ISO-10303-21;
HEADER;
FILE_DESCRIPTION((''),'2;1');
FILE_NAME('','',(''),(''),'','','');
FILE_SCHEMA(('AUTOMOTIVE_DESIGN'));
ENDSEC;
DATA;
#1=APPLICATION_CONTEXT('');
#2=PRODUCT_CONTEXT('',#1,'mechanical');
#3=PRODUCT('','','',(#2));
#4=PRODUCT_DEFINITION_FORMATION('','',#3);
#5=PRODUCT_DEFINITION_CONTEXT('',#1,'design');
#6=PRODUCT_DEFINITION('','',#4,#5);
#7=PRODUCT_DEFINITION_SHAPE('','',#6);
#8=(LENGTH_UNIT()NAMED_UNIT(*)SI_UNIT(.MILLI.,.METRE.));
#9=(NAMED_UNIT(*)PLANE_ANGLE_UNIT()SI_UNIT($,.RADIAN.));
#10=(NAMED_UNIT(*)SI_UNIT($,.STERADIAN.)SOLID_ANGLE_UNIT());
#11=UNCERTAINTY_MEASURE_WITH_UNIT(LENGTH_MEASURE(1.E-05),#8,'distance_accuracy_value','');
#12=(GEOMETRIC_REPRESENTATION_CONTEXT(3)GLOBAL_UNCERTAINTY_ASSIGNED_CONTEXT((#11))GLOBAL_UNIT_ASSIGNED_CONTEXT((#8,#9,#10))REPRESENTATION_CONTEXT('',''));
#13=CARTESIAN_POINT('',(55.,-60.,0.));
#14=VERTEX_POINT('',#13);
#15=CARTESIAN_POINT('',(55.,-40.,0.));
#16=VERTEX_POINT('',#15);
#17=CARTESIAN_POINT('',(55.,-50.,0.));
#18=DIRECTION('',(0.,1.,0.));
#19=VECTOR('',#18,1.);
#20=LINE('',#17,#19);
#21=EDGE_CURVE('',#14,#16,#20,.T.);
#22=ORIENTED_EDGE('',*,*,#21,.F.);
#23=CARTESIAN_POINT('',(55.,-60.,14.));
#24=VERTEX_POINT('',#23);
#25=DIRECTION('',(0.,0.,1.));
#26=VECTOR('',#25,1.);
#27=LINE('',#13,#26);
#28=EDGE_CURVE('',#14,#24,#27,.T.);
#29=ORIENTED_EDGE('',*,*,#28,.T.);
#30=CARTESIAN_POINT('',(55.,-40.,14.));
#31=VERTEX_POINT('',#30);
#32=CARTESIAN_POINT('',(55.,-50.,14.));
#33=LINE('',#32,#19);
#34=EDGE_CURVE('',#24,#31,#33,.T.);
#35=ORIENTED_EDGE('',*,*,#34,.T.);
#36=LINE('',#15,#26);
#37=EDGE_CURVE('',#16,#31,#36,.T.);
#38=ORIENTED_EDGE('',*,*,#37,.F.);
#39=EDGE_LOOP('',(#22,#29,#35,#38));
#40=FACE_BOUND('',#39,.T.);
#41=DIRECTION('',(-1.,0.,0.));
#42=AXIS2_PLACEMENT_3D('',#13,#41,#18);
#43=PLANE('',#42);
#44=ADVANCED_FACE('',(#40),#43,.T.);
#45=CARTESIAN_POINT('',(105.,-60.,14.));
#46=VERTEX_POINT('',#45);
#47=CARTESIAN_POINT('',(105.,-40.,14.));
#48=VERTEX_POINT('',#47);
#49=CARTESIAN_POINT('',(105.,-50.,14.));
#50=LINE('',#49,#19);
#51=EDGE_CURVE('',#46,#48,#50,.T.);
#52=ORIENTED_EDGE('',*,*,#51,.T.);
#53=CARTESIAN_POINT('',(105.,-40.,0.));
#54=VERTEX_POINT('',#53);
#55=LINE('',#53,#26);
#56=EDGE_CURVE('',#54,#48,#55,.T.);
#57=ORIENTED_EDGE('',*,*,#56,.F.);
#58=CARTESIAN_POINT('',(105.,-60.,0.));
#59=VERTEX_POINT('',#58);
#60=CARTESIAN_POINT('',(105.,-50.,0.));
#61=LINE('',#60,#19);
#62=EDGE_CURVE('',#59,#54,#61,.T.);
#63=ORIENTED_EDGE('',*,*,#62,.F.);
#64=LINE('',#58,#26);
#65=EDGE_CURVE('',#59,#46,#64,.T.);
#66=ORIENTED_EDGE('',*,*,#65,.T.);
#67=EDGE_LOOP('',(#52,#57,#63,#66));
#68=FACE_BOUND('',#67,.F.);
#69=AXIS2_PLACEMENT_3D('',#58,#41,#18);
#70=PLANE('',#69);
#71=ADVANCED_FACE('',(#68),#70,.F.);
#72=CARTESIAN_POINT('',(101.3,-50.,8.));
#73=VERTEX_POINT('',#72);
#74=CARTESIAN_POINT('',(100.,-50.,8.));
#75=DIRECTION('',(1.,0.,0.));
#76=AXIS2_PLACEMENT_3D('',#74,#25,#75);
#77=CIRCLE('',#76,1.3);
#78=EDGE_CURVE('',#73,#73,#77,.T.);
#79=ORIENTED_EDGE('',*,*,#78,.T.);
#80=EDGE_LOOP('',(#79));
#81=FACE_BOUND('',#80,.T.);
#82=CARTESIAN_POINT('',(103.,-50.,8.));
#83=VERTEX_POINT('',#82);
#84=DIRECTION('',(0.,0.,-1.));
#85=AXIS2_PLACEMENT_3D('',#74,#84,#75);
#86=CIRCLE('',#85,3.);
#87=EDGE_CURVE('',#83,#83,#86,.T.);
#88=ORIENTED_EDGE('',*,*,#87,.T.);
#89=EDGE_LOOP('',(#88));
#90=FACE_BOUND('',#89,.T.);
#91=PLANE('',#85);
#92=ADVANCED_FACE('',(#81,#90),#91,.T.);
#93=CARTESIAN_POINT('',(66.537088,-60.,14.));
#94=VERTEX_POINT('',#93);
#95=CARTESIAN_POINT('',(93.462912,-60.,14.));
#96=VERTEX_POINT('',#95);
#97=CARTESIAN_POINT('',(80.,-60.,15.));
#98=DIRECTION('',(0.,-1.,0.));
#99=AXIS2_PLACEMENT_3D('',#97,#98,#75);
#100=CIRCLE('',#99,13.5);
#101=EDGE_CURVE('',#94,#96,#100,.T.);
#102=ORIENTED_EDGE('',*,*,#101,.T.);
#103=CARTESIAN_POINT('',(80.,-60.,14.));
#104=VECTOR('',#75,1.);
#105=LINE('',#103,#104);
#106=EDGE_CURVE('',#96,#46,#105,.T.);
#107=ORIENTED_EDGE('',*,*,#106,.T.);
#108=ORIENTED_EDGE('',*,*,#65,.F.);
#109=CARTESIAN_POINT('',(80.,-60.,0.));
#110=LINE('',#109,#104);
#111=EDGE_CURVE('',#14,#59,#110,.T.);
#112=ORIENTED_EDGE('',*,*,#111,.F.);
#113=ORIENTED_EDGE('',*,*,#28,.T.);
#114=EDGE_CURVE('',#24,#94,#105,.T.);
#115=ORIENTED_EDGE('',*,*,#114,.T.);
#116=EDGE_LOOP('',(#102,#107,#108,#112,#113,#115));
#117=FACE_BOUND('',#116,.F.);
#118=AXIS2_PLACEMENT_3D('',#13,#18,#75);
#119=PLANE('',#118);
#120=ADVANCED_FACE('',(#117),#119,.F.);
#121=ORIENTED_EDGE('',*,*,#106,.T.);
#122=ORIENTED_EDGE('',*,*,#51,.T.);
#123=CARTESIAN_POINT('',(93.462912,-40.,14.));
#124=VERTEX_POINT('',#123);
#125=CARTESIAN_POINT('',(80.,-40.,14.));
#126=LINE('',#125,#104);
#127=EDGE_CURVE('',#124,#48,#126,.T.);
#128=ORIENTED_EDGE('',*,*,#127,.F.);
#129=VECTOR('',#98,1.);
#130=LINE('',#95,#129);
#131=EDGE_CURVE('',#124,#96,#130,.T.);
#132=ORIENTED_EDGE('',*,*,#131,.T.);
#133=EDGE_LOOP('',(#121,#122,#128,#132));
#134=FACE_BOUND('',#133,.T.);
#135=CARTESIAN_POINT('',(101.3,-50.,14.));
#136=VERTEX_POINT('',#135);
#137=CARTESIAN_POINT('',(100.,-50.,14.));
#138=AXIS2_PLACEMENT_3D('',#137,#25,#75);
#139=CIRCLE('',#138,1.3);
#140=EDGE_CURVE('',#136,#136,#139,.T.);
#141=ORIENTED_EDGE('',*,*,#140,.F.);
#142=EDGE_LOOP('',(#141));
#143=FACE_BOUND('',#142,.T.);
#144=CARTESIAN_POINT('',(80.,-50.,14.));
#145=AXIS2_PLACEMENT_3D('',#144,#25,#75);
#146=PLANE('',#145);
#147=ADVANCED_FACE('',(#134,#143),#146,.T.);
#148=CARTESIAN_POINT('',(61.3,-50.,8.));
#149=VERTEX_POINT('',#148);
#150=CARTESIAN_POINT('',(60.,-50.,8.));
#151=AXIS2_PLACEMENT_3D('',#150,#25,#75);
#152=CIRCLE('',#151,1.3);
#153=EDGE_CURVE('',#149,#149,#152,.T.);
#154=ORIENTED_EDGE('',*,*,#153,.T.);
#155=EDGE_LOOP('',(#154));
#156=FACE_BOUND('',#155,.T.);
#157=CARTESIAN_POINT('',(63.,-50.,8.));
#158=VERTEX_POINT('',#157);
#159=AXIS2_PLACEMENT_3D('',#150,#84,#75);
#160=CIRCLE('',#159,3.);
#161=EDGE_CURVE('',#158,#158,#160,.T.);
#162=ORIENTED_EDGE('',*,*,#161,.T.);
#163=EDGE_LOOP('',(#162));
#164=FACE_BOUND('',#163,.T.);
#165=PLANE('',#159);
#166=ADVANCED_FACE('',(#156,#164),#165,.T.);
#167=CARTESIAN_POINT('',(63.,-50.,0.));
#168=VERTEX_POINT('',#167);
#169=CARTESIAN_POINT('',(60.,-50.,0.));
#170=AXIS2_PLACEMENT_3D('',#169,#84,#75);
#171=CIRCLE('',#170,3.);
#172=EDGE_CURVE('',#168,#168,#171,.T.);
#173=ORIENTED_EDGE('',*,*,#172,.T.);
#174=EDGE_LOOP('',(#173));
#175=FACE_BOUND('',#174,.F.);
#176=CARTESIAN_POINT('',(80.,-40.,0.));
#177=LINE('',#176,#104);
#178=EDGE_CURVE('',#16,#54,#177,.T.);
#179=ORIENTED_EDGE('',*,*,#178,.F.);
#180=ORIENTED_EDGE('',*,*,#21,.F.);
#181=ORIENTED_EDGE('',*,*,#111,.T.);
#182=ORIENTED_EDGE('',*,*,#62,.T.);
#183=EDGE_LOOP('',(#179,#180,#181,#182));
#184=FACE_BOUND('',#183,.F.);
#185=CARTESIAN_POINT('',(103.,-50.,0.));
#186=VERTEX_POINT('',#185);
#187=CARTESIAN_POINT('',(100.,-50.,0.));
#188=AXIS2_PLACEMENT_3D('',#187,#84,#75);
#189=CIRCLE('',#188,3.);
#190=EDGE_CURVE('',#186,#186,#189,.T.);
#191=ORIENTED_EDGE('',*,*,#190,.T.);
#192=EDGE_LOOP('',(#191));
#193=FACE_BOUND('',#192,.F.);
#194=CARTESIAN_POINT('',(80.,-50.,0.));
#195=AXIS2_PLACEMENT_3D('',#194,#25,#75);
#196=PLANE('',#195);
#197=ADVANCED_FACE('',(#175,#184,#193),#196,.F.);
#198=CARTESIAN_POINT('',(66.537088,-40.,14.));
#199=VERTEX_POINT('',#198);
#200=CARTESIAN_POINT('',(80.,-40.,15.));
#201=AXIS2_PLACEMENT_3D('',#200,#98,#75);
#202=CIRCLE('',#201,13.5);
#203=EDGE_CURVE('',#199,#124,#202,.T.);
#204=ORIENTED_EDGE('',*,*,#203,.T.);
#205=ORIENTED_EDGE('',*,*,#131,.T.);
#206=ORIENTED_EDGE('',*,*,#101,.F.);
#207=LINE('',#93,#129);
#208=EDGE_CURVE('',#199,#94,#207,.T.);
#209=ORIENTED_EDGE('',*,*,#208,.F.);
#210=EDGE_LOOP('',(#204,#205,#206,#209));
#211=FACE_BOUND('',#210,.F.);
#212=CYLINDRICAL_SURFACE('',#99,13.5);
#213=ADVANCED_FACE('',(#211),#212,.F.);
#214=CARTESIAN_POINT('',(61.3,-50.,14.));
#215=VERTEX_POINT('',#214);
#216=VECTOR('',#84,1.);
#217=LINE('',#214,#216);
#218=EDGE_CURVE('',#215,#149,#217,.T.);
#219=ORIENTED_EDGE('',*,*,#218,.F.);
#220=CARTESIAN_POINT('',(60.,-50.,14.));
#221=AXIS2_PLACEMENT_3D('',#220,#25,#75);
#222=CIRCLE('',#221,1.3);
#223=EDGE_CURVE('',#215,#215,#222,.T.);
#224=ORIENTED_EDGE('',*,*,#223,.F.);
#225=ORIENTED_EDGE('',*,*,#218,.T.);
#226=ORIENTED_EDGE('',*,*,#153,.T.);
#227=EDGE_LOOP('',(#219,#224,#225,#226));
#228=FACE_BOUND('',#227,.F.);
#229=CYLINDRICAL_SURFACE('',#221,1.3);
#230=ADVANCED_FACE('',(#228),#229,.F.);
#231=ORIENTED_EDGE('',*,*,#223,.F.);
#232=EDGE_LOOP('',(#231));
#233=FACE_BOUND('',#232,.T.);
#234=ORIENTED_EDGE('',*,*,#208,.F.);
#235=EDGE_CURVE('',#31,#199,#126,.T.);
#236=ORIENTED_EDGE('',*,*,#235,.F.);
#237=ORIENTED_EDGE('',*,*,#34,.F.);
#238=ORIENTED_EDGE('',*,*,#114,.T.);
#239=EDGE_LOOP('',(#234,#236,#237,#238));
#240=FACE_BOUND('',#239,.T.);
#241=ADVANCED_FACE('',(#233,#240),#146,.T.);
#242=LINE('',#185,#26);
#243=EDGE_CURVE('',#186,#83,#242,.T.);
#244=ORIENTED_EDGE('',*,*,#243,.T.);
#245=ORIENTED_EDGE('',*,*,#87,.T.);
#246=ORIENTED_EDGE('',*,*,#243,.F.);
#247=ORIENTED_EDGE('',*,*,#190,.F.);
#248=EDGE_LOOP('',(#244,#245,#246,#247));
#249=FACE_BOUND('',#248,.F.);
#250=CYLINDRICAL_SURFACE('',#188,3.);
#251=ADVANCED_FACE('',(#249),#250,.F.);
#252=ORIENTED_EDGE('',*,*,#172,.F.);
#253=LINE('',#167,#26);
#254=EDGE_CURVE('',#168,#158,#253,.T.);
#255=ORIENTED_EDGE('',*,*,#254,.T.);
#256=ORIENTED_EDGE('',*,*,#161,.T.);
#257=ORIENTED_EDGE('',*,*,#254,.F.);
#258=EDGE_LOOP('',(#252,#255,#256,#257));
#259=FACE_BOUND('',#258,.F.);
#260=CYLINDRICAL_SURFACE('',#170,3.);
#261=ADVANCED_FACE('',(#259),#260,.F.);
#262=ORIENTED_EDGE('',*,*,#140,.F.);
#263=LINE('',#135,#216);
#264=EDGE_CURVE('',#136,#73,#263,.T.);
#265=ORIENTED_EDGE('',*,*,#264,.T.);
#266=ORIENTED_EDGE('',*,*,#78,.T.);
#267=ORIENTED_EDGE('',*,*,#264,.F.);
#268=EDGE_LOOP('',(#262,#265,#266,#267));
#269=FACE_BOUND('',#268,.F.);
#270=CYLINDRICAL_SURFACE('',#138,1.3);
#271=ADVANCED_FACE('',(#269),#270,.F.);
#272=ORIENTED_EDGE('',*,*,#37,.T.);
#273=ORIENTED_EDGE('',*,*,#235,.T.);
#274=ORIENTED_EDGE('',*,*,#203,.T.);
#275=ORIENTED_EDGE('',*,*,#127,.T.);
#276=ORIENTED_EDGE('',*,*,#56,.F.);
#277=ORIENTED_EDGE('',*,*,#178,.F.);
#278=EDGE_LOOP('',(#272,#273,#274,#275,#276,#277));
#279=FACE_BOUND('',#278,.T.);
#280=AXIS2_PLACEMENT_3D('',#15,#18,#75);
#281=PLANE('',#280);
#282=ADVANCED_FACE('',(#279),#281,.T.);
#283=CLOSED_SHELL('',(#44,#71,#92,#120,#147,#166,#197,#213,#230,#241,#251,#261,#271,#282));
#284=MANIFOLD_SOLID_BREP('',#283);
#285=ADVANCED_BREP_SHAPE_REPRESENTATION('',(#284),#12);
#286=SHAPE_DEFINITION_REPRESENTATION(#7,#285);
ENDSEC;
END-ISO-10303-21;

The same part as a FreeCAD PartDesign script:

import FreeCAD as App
import Part
import Sketcher
from FreeCAD import Vector
Q = App.Units.Quantity


def add_polygon(sketch, points):
    """Adds a closed chain of lines whose ends are joined by coincident constraints."""
    first, n = sketch.GeometryCount, len(points)
    for a, b in zip(points, points[1:] + points[:1]):
        sketch.addGeometry(Part.LineSegment(App.Vector(*a, 0), App.Vector(*b, 0)), False)
    for i in range(n):
        sketch.addConstraint(Sketcher.Constraint("Coincident", first + i, 2, first + (i + 1) % n, 1))

doc = App.newDocument("Part")
body = doc.addObject("PartDesign::Body", "Body")

# Sketch on XY plane
sketch1 = doc.addObject("Sketcher::SketchObject", "Sketch")
body.addObject(sketch1)
sketch1.AttachmentSupport = (doc.XY_Plane, [""])
sketch1.MapMode = "FlatFace"
add_polygon(sketch1, [(-25, 10), (-25, -10), (25, -10), (25, 10)])  # lines 0-3
sketch1.addConstraint(Sketcher.Constraint("Vertical", 0))
sketch1.addConstraint(Sketcher.Constraint("Horizontal", 1))
sketch1.addConstraint(Sketcher.Constraint("Vertical", 2))
sketch1.addConstraint(Sketcher.Constraint("Horizontal", 3))
sketch1.addConstraint(Sketcher.Constraint("Symmetric", 0, 2, 2, 2, -1, 1))
sketch1.addConstraint(Sketcher.Constraint("DistanceX", 1, 1, 1, 2, Q("50 mm")))
sketch1.addConstraint(Sketcher.Constraint("DistanceY", 0, 2, 0, 1, Q("20 mm")))
pad1 = doc.addObject("PartDesign::Pad", "Pad")
body.addObject(pad1)
pad1.Profile = sketch1
pad1.Length = 14

# Sketch on XZ plane
sketch2 = doc.addObject("Sketcher::SketchObject", "Sketch001")
body.addObject(sketch2)
sketch2.AttachmentSupport = (doc.XZ_Plane, [""])
sketch2.MapMode = "FlatFace"
sketch2.AttachmentOffset = App.Placement(Vector(0, 0, 10), App.Rotation())
sketch2.addGeometry(Part.Circle(Vector(0, 15, 0), Vector(0, 0, 1), 14), False)
sketch2.addConstraint(Sketcher.Constraint("PointOnObject", 0, 3, -2))
sketch2.addConstraint(Sketcher.Constraint("Diameter", 0, Q("27 mm")))
sketch2.addConstraint(Sketcher.Constraint("DistanceY", -1, 1, 0, 3, Q("15 mm")))
pocket1 = doc.addObject("PartDesign::Pocket", "Pocket")
body.addObject(pocket1)
pocket1.Profile = sketch2
pocket1.Type = "ThroughAll"

# Sketch on XY plane
sketch3 = doc.addObject("Sketcher::SketchObject", "Sketch002")
body.addObject(sketch3)
sketch3.AttachmentSupport = (doc.XY_Plane, [""])
sketch3.MapMode = "FlatFace"
sketch3.AttachmentOffset = App.Placement(Vector(0, 0, 14), App.Rotation())
sketch3.addGeometry(Part.Circle(Vector(-20, 0, 0), Vector(0, 0, 1), 1.3), False)
sketch3.addGeometry(Part.Circle(Vector(20, 0, 0), Vector(0, 0, 1), 1.3), False)
sketch3.addConstraint(Sketcher.Constraint("Equal", 0, 1))
sketch3.addConstraint(Sketcher.Constraint("Symmetric", 0, 3, 1, 3, -1, 1))
sketch3.addConstraint(Sketcher.Constraint("PointOnObject", 0, 3, -1))
sketch3.addConstraint(Sketcher.Constraint("Diameter", 0, Q("2.6 mm")))
sketch3.addConstraint(Sketcher.Constraint("DistanceX", 0, 3, -1, 1, Q("20 mm")))
pocket2 = doc.addObject("PartDesign::Pocket", "Pocket001")
body.addObject(pocket2)
pocket2.Profile = sketch3
pocket2.Type = "ThroughAll"

# Sketch on XY plane
sketch4 = doc.addObject("Sketcher::SketchObject", "Sketch003")
body.addObject(sketch4)
sketch4.AttachmentSupport = (doc.XY_Plane, [""])
sketch4.MapMode = "FlatFace"
sketch4.addGeometry(Part.Circle(Vector(-20, 0, 0), Vector(0, 0, 1), 3), False)
sketch4.addGeometry(Part.Circle(Vector(20, 0, 0), Vector(0, 0, 1), 3), False)
sketch4.addConstraint(Sketcher.Constraint("Equal", 0, 1))
sketch4.addConstraint(Sketcher.Constraint("Symmetric", 0, 3, 1, 3, -1, 1))
sketch4.addConstraint(Sketcher.Constraint("PointOnObject", 0, 3, -1))
sketch4.addConstraint(Sketcher.Constraint("Diameter", 0, Q("6 mm")))
sketch4.addConstraint(Sketcher.Constraint("DistanceX", 0, 3, -1, 1, Q("20 mm")))
pocket3 = doc.addObject("PartDesign::Pocket", "Pocket002")
body.addObject(pocket3)
pocket3.Profile = sketch4
pocket3.Length = 8
pocket3.Reversed = True
body2 = doc.addObject("PartDesign::Body", "Body001")
doc.recompute()

body.Placement = App.Placement(Vector(80, -50, 0), App.Rotation(Vector(0, 0, 1), 0))
boolean = doc.addObject("PartDesign::Boolean", "Boolean")
body2.addObject(boolean)
boolean.Type = "Fuse"
boolean.addObjects([body])

doc.recompute()
